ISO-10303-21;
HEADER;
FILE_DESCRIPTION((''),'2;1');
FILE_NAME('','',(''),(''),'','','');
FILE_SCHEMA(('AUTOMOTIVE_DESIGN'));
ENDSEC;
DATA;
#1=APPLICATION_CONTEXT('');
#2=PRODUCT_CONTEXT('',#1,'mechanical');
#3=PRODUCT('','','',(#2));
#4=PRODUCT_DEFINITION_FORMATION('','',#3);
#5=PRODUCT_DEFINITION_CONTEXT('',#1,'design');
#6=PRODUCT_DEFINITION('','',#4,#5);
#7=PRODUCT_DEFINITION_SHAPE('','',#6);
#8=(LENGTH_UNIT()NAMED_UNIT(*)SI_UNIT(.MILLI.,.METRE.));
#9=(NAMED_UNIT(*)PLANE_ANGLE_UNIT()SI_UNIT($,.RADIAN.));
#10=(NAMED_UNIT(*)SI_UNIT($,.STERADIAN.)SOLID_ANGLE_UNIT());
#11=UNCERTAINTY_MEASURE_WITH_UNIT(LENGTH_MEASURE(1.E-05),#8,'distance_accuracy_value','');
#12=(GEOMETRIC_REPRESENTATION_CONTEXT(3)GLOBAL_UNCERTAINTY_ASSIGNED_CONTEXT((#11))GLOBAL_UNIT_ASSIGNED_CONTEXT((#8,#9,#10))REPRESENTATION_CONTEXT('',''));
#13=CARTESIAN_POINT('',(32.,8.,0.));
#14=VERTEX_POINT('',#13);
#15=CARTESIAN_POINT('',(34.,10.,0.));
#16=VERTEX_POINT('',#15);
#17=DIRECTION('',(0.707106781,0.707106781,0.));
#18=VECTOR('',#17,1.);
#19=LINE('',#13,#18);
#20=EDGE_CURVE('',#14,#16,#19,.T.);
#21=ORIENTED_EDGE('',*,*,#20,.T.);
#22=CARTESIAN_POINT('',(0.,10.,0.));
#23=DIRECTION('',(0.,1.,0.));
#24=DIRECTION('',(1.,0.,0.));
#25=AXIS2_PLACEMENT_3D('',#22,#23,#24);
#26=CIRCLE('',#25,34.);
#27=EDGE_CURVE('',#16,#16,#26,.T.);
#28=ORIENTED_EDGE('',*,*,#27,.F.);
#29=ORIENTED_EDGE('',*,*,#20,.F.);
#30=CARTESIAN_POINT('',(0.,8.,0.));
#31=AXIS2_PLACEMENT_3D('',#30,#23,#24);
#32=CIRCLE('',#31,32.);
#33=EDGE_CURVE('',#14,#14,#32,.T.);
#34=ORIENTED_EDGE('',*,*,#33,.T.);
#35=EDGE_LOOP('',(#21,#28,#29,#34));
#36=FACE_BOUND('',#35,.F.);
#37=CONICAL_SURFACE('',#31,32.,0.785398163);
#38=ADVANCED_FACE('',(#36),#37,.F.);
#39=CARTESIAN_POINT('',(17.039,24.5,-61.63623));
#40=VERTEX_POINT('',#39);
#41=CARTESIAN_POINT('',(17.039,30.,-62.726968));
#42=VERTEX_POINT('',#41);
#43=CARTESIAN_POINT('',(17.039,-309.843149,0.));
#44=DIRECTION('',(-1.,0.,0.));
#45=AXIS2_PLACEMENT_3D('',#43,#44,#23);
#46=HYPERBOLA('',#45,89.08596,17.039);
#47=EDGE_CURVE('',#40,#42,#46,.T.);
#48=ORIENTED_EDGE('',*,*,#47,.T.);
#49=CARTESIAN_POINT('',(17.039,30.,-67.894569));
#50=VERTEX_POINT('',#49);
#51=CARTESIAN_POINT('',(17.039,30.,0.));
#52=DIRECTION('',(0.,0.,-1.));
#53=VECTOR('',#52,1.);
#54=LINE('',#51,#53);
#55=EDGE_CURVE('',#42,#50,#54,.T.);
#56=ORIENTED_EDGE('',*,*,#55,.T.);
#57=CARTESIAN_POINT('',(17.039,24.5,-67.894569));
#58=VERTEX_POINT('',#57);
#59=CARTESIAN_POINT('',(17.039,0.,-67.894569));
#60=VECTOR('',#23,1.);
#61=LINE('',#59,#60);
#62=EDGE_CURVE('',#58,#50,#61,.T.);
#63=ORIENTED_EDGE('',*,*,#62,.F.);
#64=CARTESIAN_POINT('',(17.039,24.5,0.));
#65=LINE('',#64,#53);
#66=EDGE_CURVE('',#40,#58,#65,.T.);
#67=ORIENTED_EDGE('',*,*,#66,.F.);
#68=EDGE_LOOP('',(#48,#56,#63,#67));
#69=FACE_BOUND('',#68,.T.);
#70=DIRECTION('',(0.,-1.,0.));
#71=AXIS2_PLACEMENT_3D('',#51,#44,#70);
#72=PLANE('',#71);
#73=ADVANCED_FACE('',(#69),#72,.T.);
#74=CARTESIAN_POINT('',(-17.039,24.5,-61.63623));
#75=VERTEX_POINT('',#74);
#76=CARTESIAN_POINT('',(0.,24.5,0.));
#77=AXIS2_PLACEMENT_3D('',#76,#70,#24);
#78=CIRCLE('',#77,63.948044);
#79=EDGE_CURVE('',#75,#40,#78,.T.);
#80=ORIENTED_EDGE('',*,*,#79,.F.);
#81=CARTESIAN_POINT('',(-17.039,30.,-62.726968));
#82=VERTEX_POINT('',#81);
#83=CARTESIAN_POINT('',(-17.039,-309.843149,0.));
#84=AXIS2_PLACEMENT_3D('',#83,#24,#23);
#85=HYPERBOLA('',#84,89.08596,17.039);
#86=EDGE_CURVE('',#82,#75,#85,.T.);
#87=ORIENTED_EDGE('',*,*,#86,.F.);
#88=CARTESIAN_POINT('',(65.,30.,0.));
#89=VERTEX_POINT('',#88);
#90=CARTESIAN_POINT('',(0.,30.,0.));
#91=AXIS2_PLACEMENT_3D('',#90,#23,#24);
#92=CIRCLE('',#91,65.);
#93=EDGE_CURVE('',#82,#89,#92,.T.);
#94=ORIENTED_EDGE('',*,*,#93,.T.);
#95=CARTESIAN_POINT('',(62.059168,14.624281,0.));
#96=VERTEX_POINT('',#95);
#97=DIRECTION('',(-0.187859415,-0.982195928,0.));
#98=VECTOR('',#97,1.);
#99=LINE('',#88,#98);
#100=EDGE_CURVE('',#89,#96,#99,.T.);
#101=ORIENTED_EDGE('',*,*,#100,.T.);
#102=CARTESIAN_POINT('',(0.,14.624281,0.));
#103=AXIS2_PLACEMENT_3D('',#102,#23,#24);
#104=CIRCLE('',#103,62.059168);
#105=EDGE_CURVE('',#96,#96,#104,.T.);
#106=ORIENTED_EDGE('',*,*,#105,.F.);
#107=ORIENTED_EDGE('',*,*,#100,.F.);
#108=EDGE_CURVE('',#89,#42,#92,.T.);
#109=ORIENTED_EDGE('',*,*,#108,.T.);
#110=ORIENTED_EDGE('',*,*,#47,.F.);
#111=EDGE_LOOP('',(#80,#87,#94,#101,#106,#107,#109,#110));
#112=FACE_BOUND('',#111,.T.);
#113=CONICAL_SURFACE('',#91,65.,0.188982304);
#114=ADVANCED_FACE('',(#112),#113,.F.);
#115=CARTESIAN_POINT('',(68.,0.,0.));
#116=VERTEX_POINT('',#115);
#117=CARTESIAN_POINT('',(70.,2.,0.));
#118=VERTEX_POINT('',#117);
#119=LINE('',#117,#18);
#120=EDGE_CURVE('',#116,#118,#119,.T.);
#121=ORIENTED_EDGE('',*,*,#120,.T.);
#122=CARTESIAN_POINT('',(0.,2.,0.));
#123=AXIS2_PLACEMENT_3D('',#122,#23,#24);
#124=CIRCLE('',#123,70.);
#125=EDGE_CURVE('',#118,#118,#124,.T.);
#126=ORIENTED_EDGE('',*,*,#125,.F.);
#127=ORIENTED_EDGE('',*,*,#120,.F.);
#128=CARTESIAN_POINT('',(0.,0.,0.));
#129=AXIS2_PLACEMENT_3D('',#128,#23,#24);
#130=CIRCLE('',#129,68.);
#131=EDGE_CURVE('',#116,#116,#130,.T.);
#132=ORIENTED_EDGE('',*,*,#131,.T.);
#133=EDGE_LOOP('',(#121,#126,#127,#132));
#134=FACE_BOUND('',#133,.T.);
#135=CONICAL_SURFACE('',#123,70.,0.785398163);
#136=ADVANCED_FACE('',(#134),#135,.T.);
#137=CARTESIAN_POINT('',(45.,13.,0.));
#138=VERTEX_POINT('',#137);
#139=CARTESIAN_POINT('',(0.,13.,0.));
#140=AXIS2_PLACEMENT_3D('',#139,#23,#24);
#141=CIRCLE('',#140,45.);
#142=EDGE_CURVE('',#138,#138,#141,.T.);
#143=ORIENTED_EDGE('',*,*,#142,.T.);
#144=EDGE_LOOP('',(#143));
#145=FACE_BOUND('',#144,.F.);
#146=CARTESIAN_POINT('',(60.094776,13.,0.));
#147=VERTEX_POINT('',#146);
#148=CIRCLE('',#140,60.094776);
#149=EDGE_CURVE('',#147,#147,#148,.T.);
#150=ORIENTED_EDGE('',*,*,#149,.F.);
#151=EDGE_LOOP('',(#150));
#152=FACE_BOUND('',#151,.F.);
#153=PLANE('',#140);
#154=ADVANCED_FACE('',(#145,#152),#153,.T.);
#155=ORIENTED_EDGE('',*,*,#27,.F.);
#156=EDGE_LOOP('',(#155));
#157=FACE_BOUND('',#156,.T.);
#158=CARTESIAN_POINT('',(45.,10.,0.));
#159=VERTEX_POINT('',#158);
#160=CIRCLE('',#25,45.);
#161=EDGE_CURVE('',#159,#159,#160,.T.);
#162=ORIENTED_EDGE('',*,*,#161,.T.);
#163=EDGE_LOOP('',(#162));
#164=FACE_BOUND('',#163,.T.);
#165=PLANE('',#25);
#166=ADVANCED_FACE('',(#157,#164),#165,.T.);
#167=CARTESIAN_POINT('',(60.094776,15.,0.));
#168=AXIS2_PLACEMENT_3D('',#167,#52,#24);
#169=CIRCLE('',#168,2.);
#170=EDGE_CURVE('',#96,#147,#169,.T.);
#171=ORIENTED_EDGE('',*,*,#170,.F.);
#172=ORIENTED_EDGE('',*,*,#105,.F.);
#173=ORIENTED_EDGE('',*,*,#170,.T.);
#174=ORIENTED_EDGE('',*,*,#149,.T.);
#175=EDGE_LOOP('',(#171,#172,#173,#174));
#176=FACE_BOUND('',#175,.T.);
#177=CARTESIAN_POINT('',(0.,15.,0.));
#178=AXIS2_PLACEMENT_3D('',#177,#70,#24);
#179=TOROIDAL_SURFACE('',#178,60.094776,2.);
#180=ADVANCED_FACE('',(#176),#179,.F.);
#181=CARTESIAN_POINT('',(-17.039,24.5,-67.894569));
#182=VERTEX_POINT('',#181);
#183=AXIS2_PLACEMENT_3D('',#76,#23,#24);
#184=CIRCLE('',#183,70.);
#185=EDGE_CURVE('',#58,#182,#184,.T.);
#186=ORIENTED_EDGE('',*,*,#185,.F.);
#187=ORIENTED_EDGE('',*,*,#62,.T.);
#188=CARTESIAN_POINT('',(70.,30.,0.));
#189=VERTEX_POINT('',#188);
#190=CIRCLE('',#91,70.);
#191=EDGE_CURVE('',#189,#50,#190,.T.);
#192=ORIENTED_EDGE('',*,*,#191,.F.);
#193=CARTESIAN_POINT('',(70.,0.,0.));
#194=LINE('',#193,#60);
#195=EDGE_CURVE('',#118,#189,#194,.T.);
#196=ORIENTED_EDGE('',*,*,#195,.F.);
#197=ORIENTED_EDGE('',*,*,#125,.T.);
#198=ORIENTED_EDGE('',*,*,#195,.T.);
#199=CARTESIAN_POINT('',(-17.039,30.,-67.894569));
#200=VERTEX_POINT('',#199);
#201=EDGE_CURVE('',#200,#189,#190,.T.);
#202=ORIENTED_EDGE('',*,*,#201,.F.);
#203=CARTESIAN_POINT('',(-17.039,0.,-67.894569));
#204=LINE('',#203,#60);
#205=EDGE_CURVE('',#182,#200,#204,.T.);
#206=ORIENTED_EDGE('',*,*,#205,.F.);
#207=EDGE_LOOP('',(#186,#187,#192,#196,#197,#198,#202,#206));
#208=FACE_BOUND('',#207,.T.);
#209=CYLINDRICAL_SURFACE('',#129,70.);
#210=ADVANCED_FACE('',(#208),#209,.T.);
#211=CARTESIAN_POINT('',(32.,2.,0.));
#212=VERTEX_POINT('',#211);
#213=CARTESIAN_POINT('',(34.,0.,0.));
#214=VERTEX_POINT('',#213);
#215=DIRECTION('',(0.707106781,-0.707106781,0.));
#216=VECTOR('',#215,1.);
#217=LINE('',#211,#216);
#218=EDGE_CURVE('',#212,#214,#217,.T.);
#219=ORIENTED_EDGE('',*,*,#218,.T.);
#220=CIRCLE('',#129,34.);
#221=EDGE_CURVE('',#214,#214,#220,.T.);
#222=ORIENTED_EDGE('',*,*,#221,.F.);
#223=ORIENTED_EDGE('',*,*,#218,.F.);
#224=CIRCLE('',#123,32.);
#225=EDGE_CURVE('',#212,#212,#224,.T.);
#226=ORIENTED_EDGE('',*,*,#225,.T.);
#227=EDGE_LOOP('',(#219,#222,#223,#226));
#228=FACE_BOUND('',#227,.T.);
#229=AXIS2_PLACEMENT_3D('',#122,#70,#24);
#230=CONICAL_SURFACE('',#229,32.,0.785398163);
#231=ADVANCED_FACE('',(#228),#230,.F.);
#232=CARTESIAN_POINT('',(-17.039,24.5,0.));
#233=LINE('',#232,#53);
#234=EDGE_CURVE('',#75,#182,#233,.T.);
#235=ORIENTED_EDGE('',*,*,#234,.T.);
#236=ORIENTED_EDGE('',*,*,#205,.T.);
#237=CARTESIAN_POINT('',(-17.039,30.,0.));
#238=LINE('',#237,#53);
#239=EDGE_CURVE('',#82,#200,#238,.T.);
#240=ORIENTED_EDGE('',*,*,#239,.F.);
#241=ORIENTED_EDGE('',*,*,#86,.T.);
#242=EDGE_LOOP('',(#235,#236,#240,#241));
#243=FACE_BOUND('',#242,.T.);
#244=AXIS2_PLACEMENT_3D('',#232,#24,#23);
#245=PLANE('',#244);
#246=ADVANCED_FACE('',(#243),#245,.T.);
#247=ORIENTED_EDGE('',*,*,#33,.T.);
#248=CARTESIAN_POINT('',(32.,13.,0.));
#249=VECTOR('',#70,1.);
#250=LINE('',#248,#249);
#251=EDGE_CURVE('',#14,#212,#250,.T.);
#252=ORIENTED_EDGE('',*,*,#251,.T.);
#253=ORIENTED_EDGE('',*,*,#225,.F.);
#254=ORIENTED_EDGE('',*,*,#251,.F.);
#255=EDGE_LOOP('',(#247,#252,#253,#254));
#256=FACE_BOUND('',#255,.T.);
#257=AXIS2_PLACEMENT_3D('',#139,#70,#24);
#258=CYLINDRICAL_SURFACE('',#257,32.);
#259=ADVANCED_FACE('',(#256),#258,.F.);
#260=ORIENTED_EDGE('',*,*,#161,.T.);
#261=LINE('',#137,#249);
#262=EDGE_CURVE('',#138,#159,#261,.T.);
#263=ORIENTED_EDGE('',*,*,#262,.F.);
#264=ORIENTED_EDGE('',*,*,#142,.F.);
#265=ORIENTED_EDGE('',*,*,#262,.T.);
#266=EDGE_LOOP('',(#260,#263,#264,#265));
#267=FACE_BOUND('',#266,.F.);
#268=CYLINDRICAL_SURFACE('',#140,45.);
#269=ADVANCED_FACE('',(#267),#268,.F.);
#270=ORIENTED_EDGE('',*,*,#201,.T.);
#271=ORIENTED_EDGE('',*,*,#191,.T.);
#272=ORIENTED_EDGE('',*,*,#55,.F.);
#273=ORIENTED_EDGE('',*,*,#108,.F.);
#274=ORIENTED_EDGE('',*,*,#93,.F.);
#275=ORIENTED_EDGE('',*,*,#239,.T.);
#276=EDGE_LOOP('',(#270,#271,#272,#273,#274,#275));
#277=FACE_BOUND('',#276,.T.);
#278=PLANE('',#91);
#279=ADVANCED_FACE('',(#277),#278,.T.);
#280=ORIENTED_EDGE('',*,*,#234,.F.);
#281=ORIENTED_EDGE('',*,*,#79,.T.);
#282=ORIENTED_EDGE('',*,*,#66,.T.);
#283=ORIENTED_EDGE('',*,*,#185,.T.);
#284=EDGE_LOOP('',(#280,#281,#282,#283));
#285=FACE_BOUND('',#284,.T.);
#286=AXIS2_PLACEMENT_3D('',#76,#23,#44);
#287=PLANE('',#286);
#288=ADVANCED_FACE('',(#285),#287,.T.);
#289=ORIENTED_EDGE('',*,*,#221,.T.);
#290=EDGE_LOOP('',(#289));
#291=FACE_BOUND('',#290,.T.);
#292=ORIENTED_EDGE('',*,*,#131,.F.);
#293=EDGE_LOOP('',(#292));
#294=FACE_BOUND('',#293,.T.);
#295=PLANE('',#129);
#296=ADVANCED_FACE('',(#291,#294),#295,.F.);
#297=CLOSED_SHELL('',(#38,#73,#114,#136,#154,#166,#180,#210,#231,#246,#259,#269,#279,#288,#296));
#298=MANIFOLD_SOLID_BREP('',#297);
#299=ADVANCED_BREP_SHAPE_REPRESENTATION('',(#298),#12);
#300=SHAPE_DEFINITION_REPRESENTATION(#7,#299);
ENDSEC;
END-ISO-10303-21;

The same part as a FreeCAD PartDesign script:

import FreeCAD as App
import Part
import Sketcher
from FreeCAD import Vector


def edges_at(feature, points):
    """Names of the edges that pass closest to the given points."""
    edges = feature.Shape.Edges
    near = lambda p: min(range(len(edges)), key=lambda i: edges[i].distToShape(Part.Vertex(*p))[0])
    return sorted({f"Edge{near(p) + 1}" for p in points})


def add_polygon(sketch, points):
    """Adds a closed chain of lines whose ends are joined by coincident constraints."""
    first, n = sketch.GeometryCount, len(points)
    for a, b in zip(points, points[1:] + points[:1]):
        sketch.addGeometry(Part.LineSegment(App.Vector(*a, 0), App.Vector(*b, 0)), False)
    for i in range(n):
        sketch.addConstraint(Sketcher.Constraint("Coincident", first + i, 2, first + (i + 1) % n, 1))

doc = App.newDocument("Part")
body = doc.addObject("PartDesign::Body", "Body")

# Sketch on XY plane
sketch1 = doc.addObject("Sketcher::SketchObject", "Sketch")
body.addObject(sketch1)
sketch1.AttachmentSupport = (doc.XY_Plane, [""])
sketch1.MapMode = "FlatFace"
add_polygon(sketch1, [(32, 13), (32, 0), (70, 0), (70, 30), (65, 30), (62, 13)])  # lines 0-5
sketch1.addConstraint([
    Sketcher.Constraint("Vertical", 0),
    Sketcher.Constraint("Horizontal", 1),
    Sketcher.Constraint("Vertical", 2),
    Sketcher.Constraint("Horizontal", 3),
    Sketcher.Constraint("Horizontal", 5),
    Sketcher.Constraint("PointOnObject", 0, 2, -1),
    Sketcher.Constraint("DistanceX", 3, 2, 3, 1, 5.0),
    Sketcher.Constraint("DistanceY", 2, 1, 2, 2, 30.0),
    Sketcher.Constraint("DistanceX", -1, 1, 0, 2, 32.0),
    Sketcher.Constraint("DistanceX", -1, 1, 1, 2, 70.0),
    Sketcher.Constraint("DistanceY", 0, 2, 0, 1, 13.0),
    Sketcher.Constraint("DistanceX", 5, 2, 5, 1, 29.7485),
])
revolution = doc.addObject("PartDesign::Revolution", "Revolution")
body.addObject(revolution)
revolution.Profile = sketch1
revolution.ReferenceAxis = (sketch1, ["V_Axis"])
revolution.Angle = 360

# Sketch on XZ plane
sketch2 = doc.addObject("Sketcher::SketchObject", "Sketch001")
body.addObject(sketch2)
sketch2.AttachmentSupport = (doc.XZ_Plane, [""])
sketch2.MapMode = "FlatFace"
sketch2.AttachmentOffset = App.Placement(Vector(0, 0, -13), App.Rotation())
sketch2.addGeometry([
    Part.Circle(Vector(0, 0, 0), Vector(0, 0, 1), 45),
    Part.Circle(Vector(0, 0, 0), Vector(0, 0, 1), 32),
], False)
sketch2.addConstraint([
    Sketcher.Constraint("Coincident", 0, 3, -1, 1),
    Sketcher.Constraint("Coincident", 1, 3, -1, 1),
    Sketcher.Constraint("Diameter", 0, 90.0),
    Sketcher.Constraint("Diameter", 1, 64.0),
])
pocket1 = doc.addObject("PartDesign::Pocket", "Pocket")
body.addObject(pocket1)
pocket1.Profile = sketch2
pocket1.Length = 3
pocket1.Reversed = True
doc.recompute()

chamfer = doc.addObject("PartDesign::Chamfer", "Chamfer")
body.addObject(chamfer)
chamfer.Base = (pocket1, edges_at(pocket1, [(-32, 10, 0), (-32, 0, 0)]))
chamfer.Size = 2
doc.recompute()

chamfer2 = doc.addObject("PartDesign::Chamfer", "Chamfer001")
body.addObject(chamfer2)
chamfer2.Base = (chamfer, edges_at(chamfer, [(-70, 0, 0)]))
chamfer2.Size = 2
doc.recompute()

fillet = doc.addObject("PartDesign::Fillet", "Fillet")
body.addObject(fillet)
fillet.Base = (chamfer2, edges_at(chamfer2, [(-61.748, 13, 0)]))
fillet.Radius = 2

# Sketch on XY plane
sketch3 = doc.addObject("Sketcher::SketchObject", "Sketch002")
body.addObject(sketch3)
sketch3.AttachmentSupport = (doc.XY_Plane, [""])
sketch3.MapMode = "FlatFace"
add_polygon(sketch3, [(-17, 30), (-17, 24), (17, 24), (17, 30)])  # lines 0-3
sketch3.addConstraint([
    Sketcher.Constraint("Vertical", 0),
    Sketcher.Constraint("Horizontal", 1),
    Sketcher.Constraint("Vertical", 2),
    Sketcher.Constraint("Horizontal", 3),
    Sketcher.Constraint("DistanceY", 0, 2, 0, 1, 5.5),
    Sketcher.Constraint("DistanceY", -1, 1, 2, 2, 30.0),
    Sketcher.Constraint("DistanceX", 1, 1, 1, 2, 34.078),
    Sketcher.Constraint("DistanceX", 0, 2, -1, 1, 17.039),
])
pocket2 = doc.addObject("PartDesign::Pocket", "Pocket001")
body.addObject(pocket2)
pocket2.Profile = sketch3
pocket2.Type = "ThroughAll"

doc.recompute()
